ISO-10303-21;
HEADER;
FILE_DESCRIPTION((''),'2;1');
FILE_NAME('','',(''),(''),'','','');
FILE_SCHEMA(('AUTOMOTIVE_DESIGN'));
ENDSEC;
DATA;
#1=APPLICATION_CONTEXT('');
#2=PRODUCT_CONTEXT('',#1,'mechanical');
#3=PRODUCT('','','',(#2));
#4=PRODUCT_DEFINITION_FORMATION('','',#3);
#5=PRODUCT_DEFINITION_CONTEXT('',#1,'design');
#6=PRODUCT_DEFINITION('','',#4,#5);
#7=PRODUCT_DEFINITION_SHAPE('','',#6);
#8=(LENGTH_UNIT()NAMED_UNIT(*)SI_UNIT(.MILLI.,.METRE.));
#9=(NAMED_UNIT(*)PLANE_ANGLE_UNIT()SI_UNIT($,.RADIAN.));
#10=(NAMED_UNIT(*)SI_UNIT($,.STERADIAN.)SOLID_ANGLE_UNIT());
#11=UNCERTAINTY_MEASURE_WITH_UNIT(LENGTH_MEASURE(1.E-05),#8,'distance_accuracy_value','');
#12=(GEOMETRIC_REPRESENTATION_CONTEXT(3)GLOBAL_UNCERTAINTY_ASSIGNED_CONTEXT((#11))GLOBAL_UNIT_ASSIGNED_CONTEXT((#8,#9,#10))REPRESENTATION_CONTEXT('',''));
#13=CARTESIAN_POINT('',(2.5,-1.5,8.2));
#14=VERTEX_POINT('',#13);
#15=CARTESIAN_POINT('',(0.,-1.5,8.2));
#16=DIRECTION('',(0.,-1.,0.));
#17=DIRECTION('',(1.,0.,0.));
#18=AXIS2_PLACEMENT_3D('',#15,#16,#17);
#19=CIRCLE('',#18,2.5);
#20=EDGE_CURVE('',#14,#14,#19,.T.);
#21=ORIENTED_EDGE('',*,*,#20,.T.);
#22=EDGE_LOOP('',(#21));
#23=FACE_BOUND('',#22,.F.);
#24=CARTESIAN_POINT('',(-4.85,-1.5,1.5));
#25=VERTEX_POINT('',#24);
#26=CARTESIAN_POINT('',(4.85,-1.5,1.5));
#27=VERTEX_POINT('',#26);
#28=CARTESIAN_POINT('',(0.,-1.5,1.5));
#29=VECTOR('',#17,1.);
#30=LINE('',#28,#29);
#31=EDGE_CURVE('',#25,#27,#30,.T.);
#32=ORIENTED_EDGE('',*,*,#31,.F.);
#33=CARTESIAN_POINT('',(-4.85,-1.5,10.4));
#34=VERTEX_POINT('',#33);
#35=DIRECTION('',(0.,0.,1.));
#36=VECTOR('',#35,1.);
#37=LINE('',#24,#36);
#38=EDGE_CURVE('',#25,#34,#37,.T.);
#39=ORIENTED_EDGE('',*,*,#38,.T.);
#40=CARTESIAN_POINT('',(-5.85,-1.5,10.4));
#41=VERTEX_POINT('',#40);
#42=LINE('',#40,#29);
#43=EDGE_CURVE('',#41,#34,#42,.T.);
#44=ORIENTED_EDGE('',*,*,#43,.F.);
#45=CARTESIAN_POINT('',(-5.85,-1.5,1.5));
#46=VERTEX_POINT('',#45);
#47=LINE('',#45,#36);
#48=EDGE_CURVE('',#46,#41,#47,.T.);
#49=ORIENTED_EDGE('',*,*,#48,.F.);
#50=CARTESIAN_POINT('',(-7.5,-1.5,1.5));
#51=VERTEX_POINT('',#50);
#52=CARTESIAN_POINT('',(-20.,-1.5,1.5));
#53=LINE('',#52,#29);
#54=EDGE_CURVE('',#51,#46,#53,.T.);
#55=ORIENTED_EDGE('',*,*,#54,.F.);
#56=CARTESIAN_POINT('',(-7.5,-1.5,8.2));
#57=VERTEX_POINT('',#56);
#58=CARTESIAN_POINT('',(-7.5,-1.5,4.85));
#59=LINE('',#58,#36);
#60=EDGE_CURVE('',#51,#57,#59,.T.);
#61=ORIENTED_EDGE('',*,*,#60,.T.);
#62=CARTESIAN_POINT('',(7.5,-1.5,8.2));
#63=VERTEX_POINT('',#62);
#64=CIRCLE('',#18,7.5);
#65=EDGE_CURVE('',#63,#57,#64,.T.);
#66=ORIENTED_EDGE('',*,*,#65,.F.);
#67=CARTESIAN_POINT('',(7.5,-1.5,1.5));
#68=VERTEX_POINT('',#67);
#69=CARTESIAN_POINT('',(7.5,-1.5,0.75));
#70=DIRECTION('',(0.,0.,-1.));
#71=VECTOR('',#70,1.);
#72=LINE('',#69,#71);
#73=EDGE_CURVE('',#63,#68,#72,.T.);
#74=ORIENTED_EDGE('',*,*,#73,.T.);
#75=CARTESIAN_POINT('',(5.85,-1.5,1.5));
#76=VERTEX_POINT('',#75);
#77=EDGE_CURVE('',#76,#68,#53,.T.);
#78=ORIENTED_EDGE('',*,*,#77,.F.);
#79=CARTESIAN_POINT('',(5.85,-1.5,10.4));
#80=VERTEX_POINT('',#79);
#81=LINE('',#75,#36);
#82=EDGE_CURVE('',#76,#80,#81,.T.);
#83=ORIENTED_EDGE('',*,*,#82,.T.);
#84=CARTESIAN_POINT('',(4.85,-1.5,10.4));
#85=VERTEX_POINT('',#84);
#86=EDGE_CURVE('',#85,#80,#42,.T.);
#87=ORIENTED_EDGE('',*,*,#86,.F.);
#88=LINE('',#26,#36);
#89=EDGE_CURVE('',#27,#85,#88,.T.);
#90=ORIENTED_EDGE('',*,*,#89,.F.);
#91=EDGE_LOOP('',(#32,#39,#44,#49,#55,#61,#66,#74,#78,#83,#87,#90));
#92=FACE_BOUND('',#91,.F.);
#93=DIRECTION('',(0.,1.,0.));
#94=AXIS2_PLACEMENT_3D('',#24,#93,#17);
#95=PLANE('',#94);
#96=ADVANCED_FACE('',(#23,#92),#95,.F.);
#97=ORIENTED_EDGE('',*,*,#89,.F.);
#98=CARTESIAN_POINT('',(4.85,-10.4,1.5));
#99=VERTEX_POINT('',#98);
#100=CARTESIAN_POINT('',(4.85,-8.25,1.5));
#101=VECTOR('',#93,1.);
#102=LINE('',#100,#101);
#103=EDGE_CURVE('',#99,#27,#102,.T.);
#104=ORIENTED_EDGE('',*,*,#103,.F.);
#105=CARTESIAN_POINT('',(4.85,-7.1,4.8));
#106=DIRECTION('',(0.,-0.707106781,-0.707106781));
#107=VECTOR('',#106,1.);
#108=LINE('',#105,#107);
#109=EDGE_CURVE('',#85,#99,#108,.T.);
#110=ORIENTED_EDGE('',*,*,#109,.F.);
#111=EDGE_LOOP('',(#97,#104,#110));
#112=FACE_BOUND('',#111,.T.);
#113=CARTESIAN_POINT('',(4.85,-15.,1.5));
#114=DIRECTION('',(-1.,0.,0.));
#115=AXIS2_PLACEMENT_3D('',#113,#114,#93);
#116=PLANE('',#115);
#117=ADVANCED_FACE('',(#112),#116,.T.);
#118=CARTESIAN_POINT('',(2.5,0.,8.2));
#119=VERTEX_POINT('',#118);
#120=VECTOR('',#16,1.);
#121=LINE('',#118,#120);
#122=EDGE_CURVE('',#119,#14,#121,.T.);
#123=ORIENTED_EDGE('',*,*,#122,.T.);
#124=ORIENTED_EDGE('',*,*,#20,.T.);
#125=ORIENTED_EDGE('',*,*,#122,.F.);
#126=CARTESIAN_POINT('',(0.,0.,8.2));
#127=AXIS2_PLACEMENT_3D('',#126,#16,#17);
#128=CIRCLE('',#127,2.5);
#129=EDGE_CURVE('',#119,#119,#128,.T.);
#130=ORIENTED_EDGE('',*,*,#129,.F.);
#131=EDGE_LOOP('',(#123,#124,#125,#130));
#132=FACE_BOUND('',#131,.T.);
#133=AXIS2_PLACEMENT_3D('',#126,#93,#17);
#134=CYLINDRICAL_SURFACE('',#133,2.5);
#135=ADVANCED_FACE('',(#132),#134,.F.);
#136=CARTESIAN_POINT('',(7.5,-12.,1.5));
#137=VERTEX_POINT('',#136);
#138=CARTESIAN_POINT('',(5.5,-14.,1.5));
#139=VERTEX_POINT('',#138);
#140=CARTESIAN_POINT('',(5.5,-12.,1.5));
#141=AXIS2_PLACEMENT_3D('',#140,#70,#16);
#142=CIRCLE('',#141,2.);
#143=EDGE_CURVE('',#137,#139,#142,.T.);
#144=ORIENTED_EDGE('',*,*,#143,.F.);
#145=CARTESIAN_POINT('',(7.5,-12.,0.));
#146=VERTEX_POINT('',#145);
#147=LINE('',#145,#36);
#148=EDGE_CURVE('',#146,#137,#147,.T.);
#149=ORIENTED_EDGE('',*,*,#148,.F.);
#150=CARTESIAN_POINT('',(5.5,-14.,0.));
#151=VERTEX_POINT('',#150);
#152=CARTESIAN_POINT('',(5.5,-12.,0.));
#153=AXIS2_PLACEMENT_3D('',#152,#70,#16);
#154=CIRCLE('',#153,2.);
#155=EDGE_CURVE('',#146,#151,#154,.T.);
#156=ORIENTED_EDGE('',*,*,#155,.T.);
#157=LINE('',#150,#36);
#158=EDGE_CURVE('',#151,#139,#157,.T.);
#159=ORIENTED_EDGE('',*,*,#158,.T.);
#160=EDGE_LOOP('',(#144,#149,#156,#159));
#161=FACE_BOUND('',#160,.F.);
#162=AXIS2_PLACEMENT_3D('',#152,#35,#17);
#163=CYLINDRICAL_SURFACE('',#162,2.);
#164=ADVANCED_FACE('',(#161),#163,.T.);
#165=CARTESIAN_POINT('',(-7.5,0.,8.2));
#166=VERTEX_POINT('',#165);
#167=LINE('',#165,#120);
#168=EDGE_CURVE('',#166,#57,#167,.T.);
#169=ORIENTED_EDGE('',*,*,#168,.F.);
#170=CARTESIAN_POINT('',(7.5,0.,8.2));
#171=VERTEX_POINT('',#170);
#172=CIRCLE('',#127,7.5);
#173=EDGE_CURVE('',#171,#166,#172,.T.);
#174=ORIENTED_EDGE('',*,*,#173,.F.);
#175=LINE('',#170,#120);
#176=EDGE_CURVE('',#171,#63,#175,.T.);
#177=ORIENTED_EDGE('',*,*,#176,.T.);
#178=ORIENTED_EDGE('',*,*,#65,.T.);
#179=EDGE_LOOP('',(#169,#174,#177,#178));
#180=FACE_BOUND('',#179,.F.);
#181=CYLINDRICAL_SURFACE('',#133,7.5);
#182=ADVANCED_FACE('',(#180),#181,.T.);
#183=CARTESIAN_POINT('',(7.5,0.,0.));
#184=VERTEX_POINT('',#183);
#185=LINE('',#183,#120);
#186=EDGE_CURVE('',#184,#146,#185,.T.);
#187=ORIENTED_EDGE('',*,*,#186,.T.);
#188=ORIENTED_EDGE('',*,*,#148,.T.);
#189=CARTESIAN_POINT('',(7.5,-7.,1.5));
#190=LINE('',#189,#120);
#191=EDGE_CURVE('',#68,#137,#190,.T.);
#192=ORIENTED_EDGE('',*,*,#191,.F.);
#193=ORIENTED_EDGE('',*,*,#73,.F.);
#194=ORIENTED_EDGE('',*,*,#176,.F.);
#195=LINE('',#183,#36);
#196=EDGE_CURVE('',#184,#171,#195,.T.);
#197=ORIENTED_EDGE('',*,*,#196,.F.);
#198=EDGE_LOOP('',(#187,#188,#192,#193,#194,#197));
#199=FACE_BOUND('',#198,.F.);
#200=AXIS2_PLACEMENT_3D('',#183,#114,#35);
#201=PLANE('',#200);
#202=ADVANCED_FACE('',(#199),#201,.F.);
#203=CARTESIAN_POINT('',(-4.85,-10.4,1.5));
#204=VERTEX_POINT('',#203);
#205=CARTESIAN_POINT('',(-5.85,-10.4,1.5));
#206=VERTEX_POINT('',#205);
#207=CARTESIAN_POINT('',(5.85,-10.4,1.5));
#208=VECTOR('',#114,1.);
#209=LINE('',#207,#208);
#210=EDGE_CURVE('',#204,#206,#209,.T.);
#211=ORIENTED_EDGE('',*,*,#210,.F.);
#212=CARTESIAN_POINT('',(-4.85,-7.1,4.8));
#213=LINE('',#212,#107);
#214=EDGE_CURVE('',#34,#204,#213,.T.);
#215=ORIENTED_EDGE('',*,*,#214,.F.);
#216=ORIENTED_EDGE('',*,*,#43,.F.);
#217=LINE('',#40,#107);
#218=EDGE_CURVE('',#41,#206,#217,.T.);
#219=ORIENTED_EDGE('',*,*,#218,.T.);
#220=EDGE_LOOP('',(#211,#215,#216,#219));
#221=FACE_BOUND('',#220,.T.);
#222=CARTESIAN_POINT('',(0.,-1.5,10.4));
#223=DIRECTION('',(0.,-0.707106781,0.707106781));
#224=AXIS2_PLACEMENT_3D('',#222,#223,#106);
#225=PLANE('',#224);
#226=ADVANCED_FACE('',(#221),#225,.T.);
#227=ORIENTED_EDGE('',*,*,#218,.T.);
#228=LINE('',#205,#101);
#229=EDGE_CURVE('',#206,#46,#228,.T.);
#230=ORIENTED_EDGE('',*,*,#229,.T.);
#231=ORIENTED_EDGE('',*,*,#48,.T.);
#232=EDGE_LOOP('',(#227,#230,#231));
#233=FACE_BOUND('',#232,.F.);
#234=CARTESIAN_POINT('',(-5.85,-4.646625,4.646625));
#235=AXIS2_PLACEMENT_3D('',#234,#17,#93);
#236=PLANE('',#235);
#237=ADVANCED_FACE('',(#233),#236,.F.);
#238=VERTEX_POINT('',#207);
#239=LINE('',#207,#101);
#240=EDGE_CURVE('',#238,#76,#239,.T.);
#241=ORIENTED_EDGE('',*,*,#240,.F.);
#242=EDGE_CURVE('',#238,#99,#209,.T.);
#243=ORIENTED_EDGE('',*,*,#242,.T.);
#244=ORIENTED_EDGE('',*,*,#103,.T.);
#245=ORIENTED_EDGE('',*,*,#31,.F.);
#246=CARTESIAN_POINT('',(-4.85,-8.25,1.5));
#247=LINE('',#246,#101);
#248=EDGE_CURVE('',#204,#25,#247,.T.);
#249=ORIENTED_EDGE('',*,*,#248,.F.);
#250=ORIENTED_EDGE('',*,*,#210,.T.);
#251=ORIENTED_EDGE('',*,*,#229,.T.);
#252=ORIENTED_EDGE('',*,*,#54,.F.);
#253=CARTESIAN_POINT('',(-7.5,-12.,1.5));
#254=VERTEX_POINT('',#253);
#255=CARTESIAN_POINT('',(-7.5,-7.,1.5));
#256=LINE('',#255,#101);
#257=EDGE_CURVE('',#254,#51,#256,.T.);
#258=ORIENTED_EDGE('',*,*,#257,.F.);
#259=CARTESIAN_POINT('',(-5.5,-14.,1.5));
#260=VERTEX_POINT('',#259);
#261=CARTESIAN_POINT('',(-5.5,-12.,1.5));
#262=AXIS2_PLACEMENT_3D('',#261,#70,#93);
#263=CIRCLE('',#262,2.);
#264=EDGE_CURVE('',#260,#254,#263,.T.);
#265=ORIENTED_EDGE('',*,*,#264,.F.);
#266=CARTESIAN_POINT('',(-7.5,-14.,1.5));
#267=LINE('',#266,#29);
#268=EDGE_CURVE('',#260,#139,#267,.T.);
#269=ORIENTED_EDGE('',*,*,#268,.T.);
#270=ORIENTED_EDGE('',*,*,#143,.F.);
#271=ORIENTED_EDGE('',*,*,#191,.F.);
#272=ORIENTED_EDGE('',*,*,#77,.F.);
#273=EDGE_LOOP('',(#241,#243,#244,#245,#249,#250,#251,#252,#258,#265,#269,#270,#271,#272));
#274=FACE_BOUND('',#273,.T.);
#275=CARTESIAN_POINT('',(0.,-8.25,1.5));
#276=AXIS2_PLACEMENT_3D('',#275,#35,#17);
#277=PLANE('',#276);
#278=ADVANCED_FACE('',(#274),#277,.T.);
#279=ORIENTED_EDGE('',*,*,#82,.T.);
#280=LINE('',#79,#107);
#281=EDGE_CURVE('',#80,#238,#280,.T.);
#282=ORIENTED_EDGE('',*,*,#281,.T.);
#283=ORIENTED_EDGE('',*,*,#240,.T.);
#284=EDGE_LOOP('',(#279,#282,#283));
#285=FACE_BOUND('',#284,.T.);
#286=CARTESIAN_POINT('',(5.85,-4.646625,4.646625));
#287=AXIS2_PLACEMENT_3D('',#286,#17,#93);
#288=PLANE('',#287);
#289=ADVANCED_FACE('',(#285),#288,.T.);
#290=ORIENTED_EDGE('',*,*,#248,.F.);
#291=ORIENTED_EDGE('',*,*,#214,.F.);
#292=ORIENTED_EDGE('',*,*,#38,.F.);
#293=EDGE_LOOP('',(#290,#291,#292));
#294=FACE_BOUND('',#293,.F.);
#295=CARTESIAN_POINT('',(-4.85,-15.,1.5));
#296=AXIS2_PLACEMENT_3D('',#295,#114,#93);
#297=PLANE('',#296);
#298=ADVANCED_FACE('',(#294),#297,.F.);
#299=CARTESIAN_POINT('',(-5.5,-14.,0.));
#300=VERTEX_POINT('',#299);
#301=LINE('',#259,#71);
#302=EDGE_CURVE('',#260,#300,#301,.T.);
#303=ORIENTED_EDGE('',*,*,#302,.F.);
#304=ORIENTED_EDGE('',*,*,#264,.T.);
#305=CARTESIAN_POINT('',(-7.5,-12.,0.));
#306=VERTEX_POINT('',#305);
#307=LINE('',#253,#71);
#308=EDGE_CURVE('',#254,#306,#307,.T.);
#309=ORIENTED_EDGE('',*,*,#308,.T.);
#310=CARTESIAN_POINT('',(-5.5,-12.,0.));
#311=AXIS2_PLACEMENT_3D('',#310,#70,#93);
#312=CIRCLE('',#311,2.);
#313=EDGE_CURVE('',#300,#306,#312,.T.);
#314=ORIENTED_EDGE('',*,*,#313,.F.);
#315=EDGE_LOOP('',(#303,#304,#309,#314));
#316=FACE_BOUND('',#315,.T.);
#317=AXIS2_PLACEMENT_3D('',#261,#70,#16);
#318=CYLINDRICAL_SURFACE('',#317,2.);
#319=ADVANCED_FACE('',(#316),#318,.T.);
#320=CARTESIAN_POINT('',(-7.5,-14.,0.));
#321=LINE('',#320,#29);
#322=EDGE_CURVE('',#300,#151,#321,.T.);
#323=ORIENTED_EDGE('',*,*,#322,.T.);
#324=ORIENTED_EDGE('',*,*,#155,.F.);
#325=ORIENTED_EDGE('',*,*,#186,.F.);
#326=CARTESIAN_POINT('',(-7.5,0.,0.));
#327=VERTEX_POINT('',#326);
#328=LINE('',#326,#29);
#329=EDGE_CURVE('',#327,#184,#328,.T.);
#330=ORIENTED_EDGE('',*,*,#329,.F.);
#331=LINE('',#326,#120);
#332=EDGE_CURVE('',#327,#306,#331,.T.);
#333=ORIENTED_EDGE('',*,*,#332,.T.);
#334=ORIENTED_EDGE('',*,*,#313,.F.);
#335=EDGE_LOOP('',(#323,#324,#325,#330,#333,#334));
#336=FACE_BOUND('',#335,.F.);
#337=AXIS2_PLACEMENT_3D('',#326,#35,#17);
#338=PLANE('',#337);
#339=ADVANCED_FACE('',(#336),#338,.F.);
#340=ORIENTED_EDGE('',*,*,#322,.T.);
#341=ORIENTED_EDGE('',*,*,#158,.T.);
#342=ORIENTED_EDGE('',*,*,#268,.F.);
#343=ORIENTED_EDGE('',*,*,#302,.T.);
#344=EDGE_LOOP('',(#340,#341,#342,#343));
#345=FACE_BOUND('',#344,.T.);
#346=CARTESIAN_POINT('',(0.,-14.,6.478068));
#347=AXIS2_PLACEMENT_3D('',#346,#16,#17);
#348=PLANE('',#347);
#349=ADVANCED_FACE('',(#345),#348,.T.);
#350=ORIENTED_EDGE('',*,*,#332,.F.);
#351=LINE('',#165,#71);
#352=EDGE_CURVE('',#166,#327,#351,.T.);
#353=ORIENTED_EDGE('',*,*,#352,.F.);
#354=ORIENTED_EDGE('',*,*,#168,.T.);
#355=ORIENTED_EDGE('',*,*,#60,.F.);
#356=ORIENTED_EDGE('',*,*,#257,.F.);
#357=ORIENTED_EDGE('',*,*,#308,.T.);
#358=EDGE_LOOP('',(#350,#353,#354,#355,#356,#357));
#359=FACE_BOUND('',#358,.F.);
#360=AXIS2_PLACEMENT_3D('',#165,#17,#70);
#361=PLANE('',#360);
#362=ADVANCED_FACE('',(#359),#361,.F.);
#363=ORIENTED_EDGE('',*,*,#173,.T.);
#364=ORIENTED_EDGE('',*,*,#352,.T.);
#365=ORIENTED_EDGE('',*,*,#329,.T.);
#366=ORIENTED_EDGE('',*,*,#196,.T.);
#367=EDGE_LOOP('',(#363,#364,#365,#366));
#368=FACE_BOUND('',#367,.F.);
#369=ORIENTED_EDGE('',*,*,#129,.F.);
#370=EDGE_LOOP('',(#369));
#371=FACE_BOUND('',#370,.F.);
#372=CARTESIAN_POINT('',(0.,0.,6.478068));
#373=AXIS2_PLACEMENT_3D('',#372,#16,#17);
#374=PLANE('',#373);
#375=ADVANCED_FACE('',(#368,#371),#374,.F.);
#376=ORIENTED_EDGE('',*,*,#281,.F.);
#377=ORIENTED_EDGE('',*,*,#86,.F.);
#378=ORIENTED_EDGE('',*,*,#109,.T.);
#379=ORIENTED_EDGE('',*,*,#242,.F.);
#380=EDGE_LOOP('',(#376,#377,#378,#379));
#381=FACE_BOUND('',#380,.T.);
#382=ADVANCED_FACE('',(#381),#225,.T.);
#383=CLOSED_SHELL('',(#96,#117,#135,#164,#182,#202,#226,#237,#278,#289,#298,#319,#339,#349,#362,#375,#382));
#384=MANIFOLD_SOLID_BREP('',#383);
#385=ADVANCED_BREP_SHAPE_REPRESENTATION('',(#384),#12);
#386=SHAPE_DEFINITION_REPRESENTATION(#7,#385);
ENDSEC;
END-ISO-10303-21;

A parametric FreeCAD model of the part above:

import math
import FreeCAD as App
import Part
import Sketcher

V = App.Vector


def edges_at(feature, points):
    """Names of the edges that pass closest to the given points."""
    edges = feature.Shape.Edges
    near = lambda p: min(range(len(edges)), key=lambda i: edges[i].distToShape(Part.Vertex(*p))[0])
    return sorted({f"Edge{near(p) + 1}" for p in points})


def add_polygon(sketch, points):
    """Adds a closed chain of lines whose ends are joined by coincident constraints."""
    first, n = sketch.GeometryCount, len(points)
    for a, b in zip(points, points[1:] + points[:1]):
        sketch.addGeometry(Part.LineSegment(App.Vector(*a, 0), App.Vector(*b, 0)), False)
    for i in range(n):
        sketch.addConstraint(Sketcher.Constraint("Coincident", first + i, 2, first + (i + 1) % n, 1))

doc = App.newDocument("Part")
body = doc.addObject("PartDesign::Body", "Body")

sketch1 = body.newObject("Sketcher::SketchObject", "Sketch")
sketch1.AttachmentSupport = (doc.getObject("XZ_Plane"), [""])
sketch1.MapMode = "FlatFace"
sketch1.addGeometry([
    Part.LineSegment(V(7.5, 0, 0), V(7.5, 8.2, 0)),
    Part.ArcOfCircle(Part.Circle(V(0, 8.2, 0), V(0, 0, 1), 7.5), math.radians(0), math.radians(180)),
    Part.LineSegment(V(-7.5, 8.2, 0), V(-7.5, 0, 0)),
    Part.LineSegment(V(-7.5, 0, 0), V(7.5, 0, 0)),
    Part.Circle(V(0, 8.2, 0), V(0, 0, 1), 2.5),
], False)
sketch1.addConstraint([
    Sketcher.Constraint("Tangent", 0, 2, 1, 1),
    Sketcher.Constraint("Tangent", 1, 2, 2, 1),
    Sketcher.Constraint("Coincident", 2, 2, 3, 1),
    Sketcher.Constraint("Coincident", 3, 2, 0, 1),
    Sketcher.Constraint("Vertical", 0),
    Sketcher.Constraint("Vertical", 2),
    Sketcher.Constraint("Horizontal", 3),
    Sketcher.Constraint("Coincident", 4, 3, 1, 3),
    Sketcher.Constraint("Symmetric", 2, 2, 3, 2, -1, 1),
    Sketcher.Constraint("Diameter", 4, 5.0),
    Sketcher.Constraint("Radius", 1, 7.5),
    Sketcher.Constraint("DistanceY", 0, 1, 0, 2, 8.2),
])
pad1 = body.newObject("PartDesign::Pad", "Pad")
pad1.Profile = sketch1
pad1.Length = 14

sketch2 = body.newObject("Sketcher::SketchObject", "Sketch001")
sketch2.AttachmentSupport = (doc.getObject("YZ_Plane"), [""])
sketch2.MapMode = "FlatFace"
add_polygon(sketch2, [(-14, 18), (-14, 2), (-2, 2), (-2, 18)])
sketch2.addConstraint([
    Sketcher.Constraint("Vertical", 0),
    Sketcher.Constraint("Horizontal", 1),
    Sketcher.Constraint("Vertical", 2),
    Sketcher.Constraint("Horizontal", 3),
    Sketcher.Constraint("DistanceX", 1, 1, 1, 2, 12.5),
    Sketcher.Constraint("DistanceX", 0, 2, -1, 1, 14.0),
    Sketcher.Constraint("DistanceY", -1, 1, 0, 2, 1.5),
    Sketcher.Constraint("DistanceY", 0, 2, 0, 1, 16.927838),
])
pocket1 = body.newObject("PartDesign::Pocket", "Pocket")
pocket1.Profile = sketch2
pocket1.Length = 40
pocket1.Midplane = True

sketch3 = body.newObject("Sketcher::SketchObject", "Sketch002")
sketch3.AttachmentSupport = (doc.getObject("YZ_Plane"), [""])
sketch3.MapMode = "FlatFace"
add_polygon(sketch3, [(-2, 2), (-2, 10), (-10, 2)])
sketch3.addConstraint([
    Sketcher.Constraint("Vertical", 0),
    Sketcher.Constraint("Horizontal", 2),
    Sketcher.Constraint("Equal", 2, 0),
    Sketcher.Constraint("DistanceX", 2, 1, 2, 2, 8.9),
    Sketcher.Constraint("DistanceX", 0, 2, -1, 1, 1.5),
    Sketcher.Constraint("DistanceY", -1, 1, 0, 2, 10.4),
])
pad2 = body.newObject("PartDesign::Pad", "Pad001")
pad2.Profile = sketch3
pad2.Length = 11.7
pad2.Midplane = True

sketch4 = body.newObject("Sketcher::SketchObject", "Sketch003")
sketch4.AttachmentSupport = (doc.getObject("XY_Plane"), [""])
sketch4.MapMode = "FlatFace"
sketch4.AttachmentOffset = App.Placement(V(0, 0, 1.5), App.Rotation())
add_polygon(sketch4, [(-5, -2), (-5, -15), (5, -15), (5, -2)])
sketch4.addConstraint([
    Sketcher.Constraint("Vertical", 0),
    Sketcher.Constraint("Horizontal", 1),
    Sketcher.Constraint("Vertical", 2),
    Sketcher.Constraint("Horizontal", 3),
    Sketcher.Constraint("DistanceX", 1, 1, 1, 2, 9.7),
    Sketcher.Constraint("DistanceY", 0, 2, 0, 1, 13.5),
    Sketcher.Constraint("DistanceY", 0, 2, -1, 1, 15.0),
    Sketcher.Constraint("DistanceX", 0, 2, -1, 1, 4.85),
])
pocket2 = body.newObject("PartDesign::Pocket", "Pocket001")
pocket2.Profile = sketch4
pocket2.Length = 26.2
pocket2.Reversed = True
doc.recompute()

fillet = body.newObject("PartDesign::Fillet", "Fillet")
fillet.Base = (pocket2, edges_at(pocket2, [(7.5, -14, 0.75), (-7.5, -14, 0.75)]))
fillet.Radius = 2

doc.recompute()
